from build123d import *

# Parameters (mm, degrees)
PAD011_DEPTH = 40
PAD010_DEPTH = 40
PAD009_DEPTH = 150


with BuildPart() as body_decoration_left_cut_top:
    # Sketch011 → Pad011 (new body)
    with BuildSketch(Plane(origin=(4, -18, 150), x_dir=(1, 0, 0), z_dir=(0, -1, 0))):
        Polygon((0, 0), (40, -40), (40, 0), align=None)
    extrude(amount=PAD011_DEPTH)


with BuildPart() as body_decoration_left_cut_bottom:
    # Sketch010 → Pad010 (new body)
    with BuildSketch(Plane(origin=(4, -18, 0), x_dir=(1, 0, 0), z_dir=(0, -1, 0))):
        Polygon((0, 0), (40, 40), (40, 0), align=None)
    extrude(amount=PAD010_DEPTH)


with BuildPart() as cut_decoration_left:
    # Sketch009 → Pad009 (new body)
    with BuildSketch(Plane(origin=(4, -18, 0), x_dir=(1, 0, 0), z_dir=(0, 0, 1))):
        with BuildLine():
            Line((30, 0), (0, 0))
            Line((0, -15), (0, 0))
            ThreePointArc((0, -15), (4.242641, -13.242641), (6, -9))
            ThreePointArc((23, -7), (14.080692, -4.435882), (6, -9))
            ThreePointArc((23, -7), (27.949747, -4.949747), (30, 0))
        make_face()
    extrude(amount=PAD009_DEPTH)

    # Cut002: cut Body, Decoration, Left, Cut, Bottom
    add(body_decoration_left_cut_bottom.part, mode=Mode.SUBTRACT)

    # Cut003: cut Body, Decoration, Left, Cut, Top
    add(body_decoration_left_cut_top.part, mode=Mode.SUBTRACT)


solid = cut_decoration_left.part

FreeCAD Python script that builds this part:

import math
import FreeCAD as App
import Part
import Sketcher

V = App.Vector
Q = App.Units.Quantity


def add_polygon(sketch, points):
    """Adds a closed chain of lines whose ends are joined by coincident constraints."""
    first, n = sketch.GeometryCount, len(points)
    for a, b in zip(points, points[1:] + points[:1]):
        sketch.addGeometry(Part.LineSegment(App.Vector(*a, 0), App.Vector(*b, 0)), False)
    for i in range(n):
        sketch.addConstraint(Sketcher.Constraint("Coincident", first + i, 2, first + (i + 1) % n, 1))

doc = App.newDocument("Part")
params = doc.addObject("Spreadsheet::Sheet", "Params")
for row, (alias, value) in enumerate([
    ("sketch1_width", "40 mm"),
    ("pad1_length", "40 mm"),
    ("sketch2_width", "40 mm"),
    ("pad2_length", "40 mm"),
    ("sketch3_radius", "5.999999 mm"),
    ("sketch3_radius2", "11.999999 mm"),
    ("sketch3_radius3", "7.000002 mm"),
    ("sketch3_width", "30 mm"),
    ("sketch3_height", "15 mm"),
    ("pad3_length", "150 mm"),
], start=1):
    params.set(f"A{row}", alias)
    params.set(f"B{row}", "=" + value)
    params.setAlias(f"B{row}", alias)

body = doc.addObject("PartDesign::Body", "Body")

# Sketch on XZ plane
sketch1 = body.newObject("Sketcher::SketchObject", "Sketch")
sketch1.AttachmentSupport = (doc.getObject("XZ_Plane"), [""])
sketch1.MapMode = "FlatFace"
sketch1.AttachmentOffset = App.Placement(V(0, 0, 18), App.Rotation())
add_polygon(sketch1, [(4, 150), (44, 110), (44, 150)])  # lines 0-2
sketch1.addConstraint(Sketcher.Constraint("Vertical", 1))
sketch1.addConstraint(Sketcher.Constraint("Horizontal", 2))
sketch1.addConstraint(Sketcher.Constraint("Equal", 2, 1))
sketch1.addConstraint(Sketcher.Constraint("DistanceX", 2, 2, 2, 1, Q("40 mm")))
sketch1.addConstraint(Sketcher.Constraint("DistanceX", -1, 1, 0, 2, Q("44 mm")))
sketch1.addConstraint(Sketcher.Constraint("DistanceY", -1, 1, 0, 2, Q("110 mm")))
sketch1.setExpression("Constraints[6]", "Params.sketch1_width")
pad1 = body.newObject("PartDesign::Pad", "Pad")
pad1.Profile = sketch1
pad1.setExpression("Length", "Params.pad1_length")
body2 = doc.addObject("PartDesign::Body", "Body001")

# Sketch on XZ plane
sketch2 = body2.newObject("Sketcher::SketchObject", "Sketch001")
sketch2.AttachmentSupport = (doc.getObject("XZ_Plane001"), [""])
sketch2.MapMode = "FlatFace"
sketch2.AttachmentOffset = App.Placement(V(0, 0, 18), App.Rotation())
add_polygon(sketch2, [(44, 40), (4, 0), (44, 0)])  # lines 0-2
sketch2.addConstraint(Sketcher.Constraint("Horizontal", 1))
sketch2.addConstraint(Sketcher.Constraint("Vertical", 2))
sketch2.addConstraint(Sketcher.Constraint("PointOnObject", 0, 2, -1))
sketch2.addConstraint(Sketcher.Constraint("Equal", 1, 2))
sketch2.addConstraint(Sketcher.Constraint("DistanceX", 1, 1, 1, 2, Q("40 mm")))
sketch2.addConstraint(Sketcher.Constraint("DistanceX", -1, 1, 0, 2, Q("4 mm")))
sketch2.setExpression("Constraints[7]", "Params.sketch2_width")
pad2 = body2.newObject("PartDesign::Pad", "Pad001")
pad2.Profile = sketch2
pad2.setExpression("Length", "Params.pad2_length")
body3 = doc.addObject("PartDesign::Body", "Body002")

# Sketch on XY plane
sketch3 = body3.newObject("Sketcher::SketchObject", "Sketch002")
sketch3.AttachmentSupport = (doc.getObject("XY_Plane002"), [""])
sketch3.MapMode = "FlatFace"
sketch3.addGeometry(Part.LineSegment(V(34, -18, 0), V(4, -18, 0)), False)
sketch3.addGeometry(Part.LineSegment(V(4, -18, 0), V(4, -33, 0)), False)
sketch3.addGeometry(Part.ArcOfCircle(Part.Circle(V(4, -27, 0), V(0, 0, 1), 6), math.radians(-90), math.radians(0)), False)
sketch3.addGeometry(Part.ArcOfCircle(Part.Circle(V(19, -34, 0), V(0, 0, 1), 12), math.radians(51), math.radians(142)), False)
sketch3.addGeometry(Part.ArcOfCircle(Part.Circle(V(27, -18, 0), V(0, 0, 1), 7), math.radians(-90), math.radians(0)), False)
sketch3.addConstraint(Sketcher.Constraint("Coincident", 0, 2, 1, 1))
sketch3.addConstraint(Sketcher.Constraint("Coincident", 1, 2, 2, 1))
sketch3.addConstraint(Sketcher.Constraint("Coincident", 2, 2, 3, 2))
sketch3.addConstraint(Sketcher.Constraint("Coincident", 3, 1, 4, 1))
sketch3.addConstraint(Sketcher.Constraint("Coincident", 4, 2, 0, 1))
sketch3.addConstraint(Sketcher.Constraint("Horizontal", 0))
sketch3.addConstraint(Sketcher.Constraint("Vertical", 1))
sketch3.addConstraint(Sketcher.Constraint("Horizontal", 4, 3, 0, 2))
sketch3.addConstraint(Sketcher.Constraint("Vertical", 2, 3, 0, 2))
sketch3.addConstraint(Sketcher.Constraint("Vertical", 4, 3, 3, 1))
sketch3.addConstraint(Sketcher.Constraint("Radius", 2, Q("5.999999 mm")))
sketch3.addConstraint(Sketcher.Constraint("Radius", 3, Q("11.999999 mm")))
sketch3.addConstraint(Sketcher.Constraint("Radius", 4, Q("7.000002 mm")))
sketch3.addConstraint(Sketcher.Constraint("DistanceX", 0, 2, 0, 1, Q("30 mm")))
sketch3.addConstraint(Sketcher.Constraint("DistanceY", 1, 2, 1, 1, Q("15 mm")))
sketch3.addConstraint(Sketcher.Constraint("DistanceX", -1, 1, 2, 3, Q("4.000001 mm")))
sketch3.addConstraint(Sketcher.Constraint("DistanceY", 2, 3, -1, 1, Q("27.000001 mm")))
sketch3.addConstraint(Sketcher.Constraint("DistanceY", 2, 2, -1, 1, Q("27 mm")))
sketch3.setExpression("Constraints[10]", "Params.sketch3_radius")
sketch3.setExpression("Constraints[11]", "Params.sketch3_radius2")
sketch3.setExpression("Constraints[12]", "Params.sketch3_radius3")
sketch3.setExpression("Constraints[13]", "Params.sketch3_width")
sketch3.setExpression("Constraints[14]", "Params.sketch3_height")
pad3 = body3.newObject("PartDesign::Pad", "Pad002")
pad3.Profile = sketch3
pad3.setExpression("Length", "Params.pad3_length")
doc.recompute()

boolean = body3.newObject("PartDesign::Boolean", "Boolean")
boolean.Type = "Cut"
boolean.addObjects([body2])
doc.recompute()

boolean2 = body3.newObject("PartDesign::Boolean", "Boolean001")
boolean2.Type = "Cut"
boolean2.addObjects([body])

doc.recompute()
